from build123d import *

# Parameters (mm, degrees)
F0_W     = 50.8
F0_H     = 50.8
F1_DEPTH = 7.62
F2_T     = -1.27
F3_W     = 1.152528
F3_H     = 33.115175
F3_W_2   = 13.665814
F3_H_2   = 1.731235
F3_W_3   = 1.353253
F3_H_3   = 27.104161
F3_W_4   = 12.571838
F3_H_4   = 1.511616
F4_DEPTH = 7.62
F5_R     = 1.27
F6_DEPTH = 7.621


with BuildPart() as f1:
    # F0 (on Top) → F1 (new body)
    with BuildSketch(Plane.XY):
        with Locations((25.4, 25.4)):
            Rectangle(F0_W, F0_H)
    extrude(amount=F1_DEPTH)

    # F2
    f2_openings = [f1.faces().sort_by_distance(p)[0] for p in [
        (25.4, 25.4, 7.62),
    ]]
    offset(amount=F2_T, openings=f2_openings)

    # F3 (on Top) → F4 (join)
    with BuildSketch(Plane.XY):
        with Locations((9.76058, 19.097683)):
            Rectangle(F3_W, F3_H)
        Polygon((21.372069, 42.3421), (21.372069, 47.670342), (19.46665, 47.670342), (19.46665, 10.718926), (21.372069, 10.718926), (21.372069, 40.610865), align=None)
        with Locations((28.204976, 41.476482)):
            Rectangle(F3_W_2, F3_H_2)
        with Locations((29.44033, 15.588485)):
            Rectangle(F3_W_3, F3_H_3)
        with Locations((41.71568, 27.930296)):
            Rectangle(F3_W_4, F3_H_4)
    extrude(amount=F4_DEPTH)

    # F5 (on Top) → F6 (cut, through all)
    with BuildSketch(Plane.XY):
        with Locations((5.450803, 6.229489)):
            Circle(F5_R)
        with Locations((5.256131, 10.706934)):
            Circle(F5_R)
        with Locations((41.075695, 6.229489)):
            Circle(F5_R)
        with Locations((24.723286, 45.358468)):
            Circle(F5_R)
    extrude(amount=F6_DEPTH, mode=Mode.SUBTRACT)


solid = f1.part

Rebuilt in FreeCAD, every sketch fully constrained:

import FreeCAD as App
import Part
import Sketcher

V = App.Vector
Q = App.Units.Quantity


def faces_at(feature, points):
    """Names of the faces that lie closest to the given points."""
    faces = feature.Shape.Faces
    near = lambda p: min(range(len(faces)), key=lambda i: faces[i].distToShape(Part.Vertex(*p))[0])
    return sorted({f"Face{near(p) + 1}" for p in points})


def add_polygon(sketch, points):
    """Adds a closed chain of lines whose ends are joined by coincident constraints."""
    first, n = sketch.GeometryCount, len(points)
    for a, b in zip(points, points[1:] + points[:1]):
        sketch.addGeometry(Part.LineSegment(App.Vector(*a, 0), App.Vector(*b, 0)), False)
    for i in range(n):
        sketch.addConstraint(Sketcher.Constraint("Coincident", first + i, 2, first + (i + 1) % n, 1))

doc = App.newDocument("Part")
body = doc.addObject("PartDesign::Body", "Body")

# Sketch on XY plane
sketch1 = body.newObject("Sketcher::SketchObject", "Sketch")
sketch1.AttachmentSupport = (doc.getObject("XY_Plane"), [""])
sketch1.MapMode = "FlatFace"
add_polygon(sketch1, [(0, 50.8), (0, 0), (50.8, 0), (50.8, 50.8)])  # lines 0-3
sketch1.addConstraint([
    Sketcher.Constraint("Vertical", 0),
    Sketcher.Constraint("Horizontal", 1),
    Sketcher.Constraint("Vertical", 2),
    Sketcher.Constraint("Horizontal", 3),
    Sketcher.Constraint("Coincident", 0, 2, -1, 1),
    Sketcher.Constraint("Equal", 3, 0),
    Sketcher.Constraint("DistanceX", 1, 1, 1, 2, Q("2 in")),
])
pad1 = body.newObject("PartDesign::Pad", "Pad")
pad1.Profile = sketch1
pad1.Length = Q("0.3 in")
doc.recompute()

thickness = body.newObject("PartDesign::Thickness", "Thickness")
thickness.Base = (pad1, faces_at(pad1, [(25.4, 25.4, 7.62)]))
thickness.Value = Q("0.05 in")
thickness.Reversed = True
thickness.Join = "Arc"

# Sketch on XY plane
sketch2 = body.newObject("Sketcher::SketchObject", "Sketch001")
sketch2.AttachmentSupport = (doc.getObject("XY_Plane"), [""])
sketch2.MapMode = "FlatFace"
add_polygon(sketch2, [(9.184316, 35.655271), (9.184316, 2.540096), (10.336844, 2.540096), (10.336844, 35.655271)])  # lines 0-3
add_polygon(sketch2, [(21.372069, 47.670342), (19.46665, 47.670342), (19.46665, 10.718926), (21.372069, 10.718926), (21.372069, 40.610864), (35.037883, 40.610864), (35.037883, 42.3421), (21.372069, 42.3421)])  # lines 4-11
add_polygon(sketch2, [(28.763703, 29.140566), (28.763703, 2.036405), (30.116957, 2.036405), (30.116957, 29.140566)])  # lines 12-15
add_polygon(sketch2, [(35.429761, 28.686104), (35.429761, 27.174488), (48.001599, 27.174488), (48.001599, 28.686104)])  # lines 16-19
sketch2.addConstraint([
    Sketcher.Constraint("Vertical", 0),
    Sketcher.Constraint("Horizontal", 1),
    Sketcher.Constraint("Vertical", 2),
    Sketcher.Constraint("Horizontal", 3),
    Sketcher.Constraint("Horizontal", 4),
    Sketcher.Constraint("Vertical", 5),
    Sketcher.Constraint("Horizontal", 6),
    Sketcher.Constraint("Vertical", 7),
    Sketcher.Constraint("Horizontal", 8),
    Sketcher.Constraint("Vertical", 9),
    Sketcher.Constraint("Horizontal", 10),
    Sketcher.Constraint("Vertical", 11),
    Sketcher.Constraint("Vertical", 12),
    Sketcher.Constraint("Horizontal", 13),
    Sketcher.Constraint("Vertical", 14),
    Sketcher.Constraint("Horizontal", 15),
    Sketcher.Constraint("Vertical", 16),
    Sketcher.Constraint("Horizontal", 17),
    Sketcher.Constraint("Vertical", 18),
    Sketcher.Constraint("Horizontal", 19),
    Sketcher.Constraint("Vertical", 7, 2, 10, 2),
    Sketcher.Constraint("DistanceX", 4, 2, 4, 1, Q("1.905419 mm")),
    Sketcher.Constraint("DistanceY", 7, 1, 7, 2, Q("29.891938 mm")),
    Sketcher.Constraint("DistanceY", 12, 2, 12, 1, Q("27.104161 mm")),
    Sketcher.Constraint("DistanceY", -1, 1, 9, 2, Q("42.3421 mm")),
    Sketcher.Constraint("DistanceX", -1, 1, 17, 2, Q("48.001599 mm")),
    Sketcher.Constraint("DistanceY", 14, 2, 8, 2, Q("11.470299 mm")),
    Sketcher.Constraint("DistanceX", 1, 1, 1, 2, Q("1.152528 mm")),
    Sketcher.Constraint("DistanceX", 8, 1, 8, 2, Q("13.665814 mm")),
    Sketcher.Constraint("DistanceX", 13, 1, 13, 2, Q("1.353253 mm")),
    Sketcher.Constraint("DistanceX", 17, 1, 17, 2, Q("12.571838 mm")),
    Sketcher.Constraint("DistanceY", 0, 2, 0, 1, Q("33.115175 mm")),
    Sketcher.Constraint("DistanceY", 5, 2, 5, 1, Q("36.951416 mm")),
    Sketcher.Constraint("DistanceY", 9, 1, 9, 2, Q("1.731235 mm")),
    Sketcher.Constraint("DistanceY", 16, 2, 16, 1, Q("1.511616 mm")),
    Sketcher.Constraint("DistanceY", -1, 1, 2, 2, Q("35.655271 mm")),
    Sketcher.Constraint("DistanceX", -1, 1, 4, 2, Q("19.46665 mm")),
    Sketcher.Constraint("DistanceY", -1, 1, 16, 2, Q("27.174488 mm")),
    Sketcher.Constraint("DistanceX", 2, 2, 8, 2, Q("24.701039 mm")),
    Sketcher.Constraint("DistanceX", 1, 2, 12, 2, Q("18.426859 mm")),
])
pad2 = body.newObject("PartDesign::Pad", "Pad001")
pad2.Profile = sketch2
pad2.Length = Q("0.3 in")

# Sketch on XY plane
sketch3 = body.newObject("Sketcher::SketchObject", "Sketch002")
sketch3.AttachmentSupport = (doc.getObject("XY_Plane"), [""])
sketch3.MapMode = "FlatFace"
sketch3.addGeometry([
    Part.Circle(V(5.450803, 6.229489, 0), V(0, 0, 1), 1.27),
    Part.Circle(V(5.256131, 10.706934, 0), V(0, 0, 1), 1.27),
    Part.Circle(V(41.075695, 6.229489, 0), V(0, 0, 1), 1.27),
    Part.Circle(V(24.723286, 45.358468, 0), V(0, 0, 1), 1.27),
], False)
sketch3.addConstraint([
    Sketcher.Constraint("Equal", 0, 1),
    Sketcher.Constraint("Equal", 1, 2),
    Sketcher.Constraint("Equal", 2, 3),
    Sketcher.Constraint("Horizontal", 0, 3, 2, 3),
    Sketcher.Constraint("Diameter", 0, Q("0.1 in")),
    Sketcher.Constraint("DistanceY", -1, 1, 0, 3, Q("6.229489 mm")),
    Sketcher.Constraint("DistanceX", -1, 1, 1, 3, Q("5.256131 mm")),
    Sketcher.Constraint("DistanceY", -1, 1, 3, 3, Q("45.358468 mm")),
    Sketcher.Constraint("DistanceX", 1, 3, 0, 3, Q("0.194672 mm")),
    Sketcher.Constraint("DistanceX", 3, 3, 2, 3, Q("16.352409 mm")),
    Sketcher.Constraint("DistanceY", -1, 1, 1, 3, Q("10.706934 mm")),
    Sketcher.Constraint("DistanceX", -1, 1, 2, 3, Q("41.075695 mm")),
])
pocket1 = body.newObject("PartDesign::Pocket", "Pocket")
pocket1.Profile = sketch3
pocket1.Type = "ThroughAll"
pocket1.Reversed = True

doc.recompute()
